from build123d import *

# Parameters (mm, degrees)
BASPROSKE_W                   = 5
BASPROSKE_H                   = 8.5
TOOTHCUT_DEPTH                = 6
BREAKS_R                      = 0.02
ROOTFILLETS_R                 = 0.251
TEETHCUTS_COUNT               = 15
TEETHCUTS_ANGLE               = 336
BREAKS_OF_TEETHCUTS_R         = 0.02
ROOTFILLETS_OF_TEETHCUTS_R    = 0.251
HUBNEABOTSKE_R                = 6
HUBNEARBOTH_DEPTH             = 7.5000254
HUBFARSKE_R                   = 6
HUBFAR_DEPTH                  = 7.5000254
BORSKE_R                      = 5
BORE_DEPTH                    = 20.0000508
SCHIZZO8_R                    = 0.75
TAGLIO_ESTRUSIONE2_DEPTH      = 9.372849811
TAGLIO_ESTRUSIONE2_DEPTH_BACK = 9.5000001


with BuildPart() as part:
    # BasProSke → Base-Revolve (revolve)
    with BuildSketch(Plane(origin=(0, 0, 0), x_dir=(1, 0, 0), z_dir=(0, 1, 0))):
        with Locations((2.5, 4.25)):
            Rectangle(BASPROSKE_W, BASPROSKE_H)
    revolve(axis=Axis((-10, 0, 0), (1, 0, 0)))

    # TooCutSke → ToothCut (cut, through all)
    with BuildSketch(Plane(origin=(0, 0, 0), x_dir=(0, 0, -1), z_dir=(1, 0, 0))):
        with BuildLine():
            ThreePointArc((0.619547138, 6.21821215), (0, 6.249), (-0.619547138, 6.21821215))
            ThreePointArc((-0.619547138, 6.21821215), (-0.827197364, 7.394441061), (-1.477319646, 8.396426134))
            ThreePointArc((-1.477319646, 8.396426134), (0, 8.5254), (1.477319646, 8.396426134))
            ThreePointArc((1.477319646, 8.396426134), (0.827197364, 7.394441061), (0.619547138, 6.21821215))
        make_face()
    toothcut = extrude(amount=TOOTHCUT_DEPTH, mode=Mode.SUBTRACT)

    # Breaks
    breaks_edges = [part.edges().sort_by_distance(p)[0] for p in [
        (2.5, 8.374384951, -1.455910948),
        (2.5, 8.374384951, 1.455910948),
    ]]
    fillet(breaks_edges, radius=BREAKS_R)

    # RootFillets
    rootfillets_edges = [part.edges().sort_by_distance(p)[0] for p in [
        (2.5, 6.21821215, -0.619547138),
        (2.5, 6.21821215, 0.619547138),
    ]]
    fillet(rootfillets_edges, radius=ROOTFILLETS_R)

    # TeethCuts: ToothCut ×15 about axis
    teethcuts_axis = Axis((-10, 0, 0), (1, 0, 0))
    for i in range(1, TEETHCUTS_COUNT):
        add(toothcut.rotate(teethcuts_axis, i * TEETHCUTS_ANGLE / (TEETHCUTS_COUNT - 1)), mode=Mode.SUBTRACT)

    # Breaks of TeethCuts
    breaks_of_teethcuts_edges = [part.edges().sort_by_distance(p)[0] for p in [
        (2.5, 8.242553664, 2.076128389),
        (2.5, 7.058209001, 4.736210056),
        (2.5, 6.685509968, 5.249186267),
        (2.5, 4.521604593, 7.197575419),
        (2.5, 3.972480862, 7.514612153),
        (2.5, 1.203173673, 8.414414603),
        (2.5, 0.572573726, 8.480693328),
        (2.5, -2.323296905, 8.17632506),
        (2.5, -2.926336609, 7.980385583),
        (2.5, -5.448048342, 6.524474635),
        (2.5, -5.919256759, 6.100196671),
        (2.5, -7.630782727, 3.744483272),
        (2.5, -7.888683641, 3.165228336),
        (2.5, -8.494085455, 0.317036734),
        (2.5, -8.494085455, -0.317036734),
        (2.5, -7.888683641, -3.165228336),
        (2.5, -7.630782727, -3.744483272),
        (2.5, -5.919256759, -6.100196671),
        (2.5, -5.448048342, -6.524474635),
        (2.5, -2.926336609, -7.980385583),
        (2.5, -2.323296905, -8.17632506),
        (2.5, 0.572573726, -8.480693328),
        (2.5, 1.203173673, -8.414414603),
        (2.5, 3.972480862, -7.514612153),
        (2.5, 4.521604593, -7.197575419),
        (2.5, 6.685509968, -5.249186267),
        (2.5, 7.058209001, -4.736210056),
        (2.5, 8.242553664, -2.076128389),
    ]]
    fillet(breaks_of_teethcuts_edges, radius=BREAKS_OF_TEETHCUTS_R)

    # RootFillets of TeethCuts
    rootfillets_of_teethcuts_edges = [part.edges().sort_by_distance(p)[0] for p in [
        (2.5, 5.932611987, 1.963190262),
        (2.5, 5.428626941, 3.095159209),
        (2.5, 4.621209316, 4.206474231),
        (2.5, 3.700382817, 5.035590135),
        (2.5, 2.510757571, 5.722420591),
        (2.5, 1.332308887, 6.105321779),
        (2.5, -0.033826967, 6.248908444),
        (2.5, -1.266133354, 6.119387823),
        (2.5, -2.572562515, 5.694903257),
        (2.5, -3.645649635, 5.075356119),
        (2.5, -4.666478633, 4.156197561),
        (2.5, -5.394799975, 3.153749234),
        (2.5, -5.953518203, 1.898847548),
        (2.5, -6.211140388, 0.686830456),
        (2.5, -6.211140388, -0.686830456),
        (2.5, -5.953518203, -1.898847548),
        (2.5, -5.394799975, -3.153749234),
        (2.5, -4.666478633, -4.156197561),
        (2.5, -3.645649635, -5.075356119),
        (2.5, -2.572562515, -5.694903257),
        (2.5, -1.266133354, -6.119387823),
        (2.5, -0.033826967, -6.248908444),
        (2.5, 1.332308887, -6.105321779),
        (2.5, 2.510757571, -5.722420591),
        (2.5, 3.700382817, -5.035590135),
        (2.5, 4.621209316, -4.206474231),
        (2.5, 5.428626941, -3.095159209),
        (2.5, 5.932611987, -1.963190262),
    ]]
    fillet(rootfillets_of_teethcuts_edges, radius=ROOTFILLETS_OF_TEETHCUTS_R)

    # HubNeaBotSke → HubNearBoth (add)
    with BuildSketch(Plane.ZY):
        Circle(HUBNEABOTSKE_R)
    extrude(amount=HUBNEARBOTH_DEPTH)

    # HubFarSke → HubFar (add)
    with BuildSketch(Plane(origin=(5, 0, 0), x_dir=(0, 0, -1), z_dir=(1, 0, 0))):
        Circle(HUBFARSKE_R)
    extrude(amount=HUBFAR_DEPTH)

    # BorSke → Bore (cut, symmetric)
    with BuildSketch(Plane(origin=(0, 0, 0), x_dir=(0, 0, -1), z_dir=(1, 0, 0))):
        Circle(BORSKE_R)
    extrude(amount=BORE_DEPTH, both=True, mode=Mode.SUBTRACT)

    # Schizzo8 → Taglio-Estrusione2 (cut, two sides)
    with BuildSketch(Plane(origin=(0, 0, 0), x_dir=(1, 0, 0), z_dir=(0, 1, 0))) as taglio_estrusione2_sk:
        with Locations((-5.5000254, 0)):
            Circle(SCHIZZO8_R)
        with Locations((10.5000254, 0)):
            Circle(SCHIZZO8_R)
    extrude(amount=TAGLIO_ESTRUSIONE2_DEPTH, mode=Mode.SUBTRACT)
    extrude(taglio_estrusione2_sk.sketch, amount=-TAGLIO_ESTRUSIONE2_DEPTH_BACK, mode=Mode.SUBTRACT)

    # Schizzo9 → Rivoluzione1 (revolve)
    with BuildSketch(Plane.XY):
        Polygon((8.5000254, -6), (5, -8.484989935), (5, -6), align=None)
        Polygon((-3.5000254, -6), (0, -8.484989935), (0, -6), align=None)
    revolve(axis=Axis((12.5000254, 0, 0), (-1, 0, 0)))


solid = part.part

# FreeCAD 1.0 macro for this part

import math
import FreeCAD as App
import Part
import Sketcher
Q = App.Units.Quantity


def edges_at(feature, points):
    """Names of the edges that pass closest to the given points."""
    edges = feature.Shape.Edges
    near = lambda p: min(range(len(edges)), key=lambda i: edges[i].distToShape(Part.Vertex(*p))[0])
    return sorted({f"Edge{near(p) + 1}" for p in points})

doc = App.newDocument("Part")
body = doc.addObject("PartDesign::Body", "Body")

# Sketch on XZ plane
sketch1 = body.newObject("Sketcher::SketchObject", "Sketch")
sketch1.AttachmentSupport = (doc.getObject("XZ_Plane"), [""])
sketch1.MapMode = "FlatFace"
sketch1.addGeometry([
    Part.LineSegment(App.Vector(0, -8, 0), App.Vector(0, 0, 0)),
    Part.LineSegment(App.Vector(0, 0, 0), App.Vector(5, 0, 0)),
    Part.LineSegment(App.Vector(5, 0, 0), App.Vector(5, -8, 0)),
    Part.LineSegment(App.Vector(5, -8, 0), App.Vector(0, -8, 0)),
], False)
sketch1.addConstraint([
    Sketcher.Constraint("Coincident", 0, 2, 1, 1),
    Sketcher.Constraint("Coincident", 1, 2, 2, 1),
    Sketcher.Constraint("Coincident", 2, 2, 3, 1),
    Sketcher.Constraint("Coincident", 3, 2, 0, 1),
    Sketcher.Constraint("Vertical", 0),
    Sketcher.Constraint("Horizontal", 1),
    Sketcher.Constraint("Vertical", 2),
    Sketcher.Constraint("Horizontal", 3),
    Sketcher.Constraint("Coincident", 0, 2, -1, 1),
    Sketcher.Constraint("DistanceX", 1, 1, 1, 2, Q("5 mm")),
    Sketcher.Constraint("DistanceY", 0, 1, 0, 2, Q("8.5 mm")),
])
revolution = body.newObject("PartDesign::Revolution", "Revolution")
revolution.Profile = sketch1
revolution.ReferenceAxis = (sketch1, ["H_Axis"])
revolution.Angle = 360

# Sketch on YZ plane
sketch2 = body.newObject("Sketcher::SketchObject", "Sketch001")
sketch2.AttachmentSupport = (doc.getObject("YZ_Plane"), [""])
sketch2.MapMode = "FlatFace"
sketch2.addGeometry([
    Part.ArcOfCircle(Part.Circle(App.Vector(0, 0, 0), App.Vector(0, 0, 1), 6.2), math.radians(-5.69), math.radians(5.69)),
    Part.ArcOfCircle(Part.Circle(App.Vector(6.3, -3.6, 0), App.Vector(0, 0, 1), 3), math.radians(46), math.radians(91)),
    Part.ArcOfCircle(Part.Circle(App.Vector(0, 0, 0), App.Vector(0, 0, 1), 8.5), math.radians(-9.98), math.radians(9.98)),
    Part.ArcOfCircle(Part.Circle(App.Vector(6.3, 3.6, 0), App.Vector(0, 0, 1), 3), math.radians(-91), math.radians(-46)),
], False)
sketch2.addConstraint([
    Sketcher.Constraint("Coincident", 0, 1, 1, 2),
    Sketcher.Constraint("Coincident", 1, 1, 2, 1),
    Sketcher.Constraint("Coincident", 2, 2, 3, 2),
    Sketcher.Constraint("Coincident", 3, 1, 0, 2),
    Sketcher.Constraint("Coincident", 0, 3, -1, 1),
    Sketcher.Constraint("Coincident", 2, 3, -1, 1),
    Sketcher.Constraint("Equal", 1, 3),
    Sketcher.Constraint("Symmetric", 1, 3, 3, 3, -1),
    Sketcher.Constraint("Radius", 1, Q("3 mm")),
    Sketcher.Constraint("Radius", 0, Q("6.249 mm")),
    Sketcher.Constraint("Radius", 2, Q("8.5254 mm")),
    Sketcher.Constraint("DistanceX", 0, 1, 1, 3, Q("0.077001 mm")),
    Sketcher.Constraint("DistanceY", 1, 3, -1, 1, Q("3.618559 mm")),
])
pocket1 = body.newObject("PartDesign::Pocket", "Pocket")
pocket1.Profile = sketch2
pocket1.Type = "ThroughAll"
pocket1.Reversed = True
doc.recompute()

fillet = body.newObject("PartDesign::Fillet", "Fillet")
fillet.Base = (pocket1, edges_at(pocket1, [(2.5, 8.374, -1.456), (2.5, 8.374, 1.456)]))
fillet.Radius = 0.02
doc.recompute()

fillet2 = body.newObject("PartDesign::Fillet", "Fillet001")
fillet2.Base = (fillet, edges_at(fillet, [(2.5, 6.218, -0.62), (2.5, 6.218, 0.62)]))
fillet2.Radius = 0.251
doc.recompute()

polarpattern = body.newObject("PartDesign::PolarPattern", "PolarPattern")
polarpattern.Originals = [pocket1]
polarpattern.Axis = (doc.getObject("X_Axis"), [""])
polarpattern.Angle = 360
polarpattern.Occurrences = 15
body.Tip = polarpattern
doc.recompute()

fillet3 = body.newObject("PartDesign::Fillet", "Fillet002")
fillet3.Base = (polarpattern, edges_at(polarpattern, [
    (2.5, 8.243, 2.076),
    (2.5, 7.058, 4.736),
    (2.5, 6.686, 5.249),
    (2.5, 4.522, 7.198),
    (2.5, 3.972, 7.515),
    (2.5, 1.203, 8.414),
    (2.5, 0.573, 8.481),
    (2.5, -2.323, 8.176),
    (2.5, -2.926, 7.98),
    (2.5, -5.448, 6.524),
    (2.5, -5.919, 6.1),
    (2.5, -7.631, 3.744),
    (2.5, -7.889, 3.165),
    (2.5, -8.494, 0.317),
    (2.5, -8.494, -0.317),
    (2.5, -7.889, -3.165),
    (2.5, -7.631, -3.744),
    (2.5, -5.919, -6.1),
    (2.5, -5.448, -6.524),
    (2.5, -2.926, -7.98),
    (2.5, -2.323, -8.176),
    (2.5, 0.573, -8.481),
    (2.5, 1.203, -8.414),
    (2.5, 3.972, -7.515),
    (2.5, 4.522, -7.198),
    (2.5, 6.686, -5.249),
    (2.5, 7.058, -4.736),
    (2.5, 8.243, -2.076),
]))
fillet3.Radius = 0.02
doc.recompute()

fillet4 = body.newObject("PartDesign::Fillet", "Fillet003")
fillet4.Base = (fillet3, edges_at(fillet3, [
    (2.5, 5.933, 1.963),
    (2.5, 5.429, 3.095),
    (2.5, 4.621, 4.206),
    (2.5, 3.7, 5.036),
    (2.5, 2.511, 5.722),
    (2.5, 1.332, 6.105),
    (2.5, -0.034, 6.249),
    (2.5, -1.266, 6.119),
    (2.5, -2.573, 5.695),
    (2.5, -3.646, 5.075),
    (2.5, -4.666, 4.156),
    (2.5, -5.395, 3.154),
    (2.5, -5.954, 1.899),
    (2.5, -6.211, 0.687),
    (2.5, -6.211, -0.687),
    (2.5, -5.954, -1.899),
    (2.5, -5.395, -3.154),
    (2.5, -4.666, -4.156),
    (2.5, -3.646, -5.075),
    (2.5, -2.573, -5.695),
    (2.5, -1.266, -6.119),
    (2.5, -0.034, -6.249),
    (2.5, 1.332, -6.105),
    (2.5, 2.511, -5.722),
    (2.5, 3.7, -5.036),
    (2.5, 4.621, -4.206),
    (2.5, 5.429, -3.095),
    (2.5, 5.933, -1.963),
]))
fillet4.Radius = 0.251

# Sketch on YZ plane
sketch3 = body.newObject("Sketcher::SketchObject", "Sketch002")
sketch3.AttachmentSupport = (doc.getObject("YZ_Plane"), [""])
sketch3.MapMode = "FlatFace"
sketch3.addGeometry(Part.Circle(App.Vector(0, 0, 0), App.Vector(0, 0, 1), 6), False)
sketch3.addConstraint([
    Sketcher.Constraint("Coincident", 0, 3, -1, 1),
    Sketcher.Constraint("Diameter", 0, Q("12 mm")),
])
pad1 = body.newObject("PartDesign::Pad", "Pad")
pad1.Profile = sketch3
pad1.Length = 7.500025
pad1.Reversed = True

# Sketch on YZ plane
sketch4 = body.newObject("Sketcher::SketchObject", "Sketch003")
sketch4.AttachmentSupport = (doc.getObject("YZ_Plane"), [""])
sketch4.MapMode = "FlatFace"
sketch4.AttachmentOffset = App.Placement(App.Vector(0, 0, 5), App.Rotation())
sketch4.addGeometry(Part.Circle(App.Vector(0, 0, 0), App.Vector(0, 0, 1), 6), False)
sketch4.addConstraint([
    Sketcher.Constraint("Coincident", 0, 3, -1, 1),
    Sketcher.Constraint("Diameter", 0, Q("12 mm")),
])
pad2 = body.newObject("PartDesign::Pad", "Pad001")
pad2.Profile = sketch4
pad2.Length = 7.500025

# Sketch on YZ plane
sketch5 = body.newObject("Sketcher::SketchObject", "Sketch004")
sketch5.AttachmentSupport = (doc.getObject("YZ_Plane"), [""])
sketch5.MapMode = "FlatFace"
sketch5.addGeometry(Part.Circle(App.Vector(0, 0, 0), App.Vector(0, 0, 1), 5), False)
sketch5.addConstraint([
    Sketcher.Constraint("Coincident", 0, 3, -1, 1),
    Sketcher.Constraint("Diameter", 0, Q("10 mm")),
])
pocket2 = body.newObject("PartDesign::Pocket", "Pocket001")
pocket2.Profile = sketch5
pocket2.Length = 40.000102
pocket2.Midplane = True

# Sketch on XZ plane
sketch6 = body.newObject("Sketcher::SketchObject", "Sketch005")
sketch6.AttachmentSupport = (doc.getObject("XZ_Plane"), [""])
sketch6.MapMode = "FlatFace"
sketch6.addGeometry([
    Part.Circle(App.Vector(-5.5, 0, 0), App.Vector(0, 0, 1), 0.8),
    Part.Circle(App.Vector(10.5, 0, 0), App.Vector(0, 0, 1), 0.8),
], False)
sketch6.addConstraint([
    Sketcher.Constraint("Equal", 0, 1),
    Sketcher.Constraint("PointOnObject", 0, 3, -1),
    Sketcher.Constraint("PointOnObject", 1, 3, -1),
    Sketcher.Constraint("Diameter", 0, Q("1.5 mm")),
    Sketcher.Constraint("DistanceX", 0, 3, 1, 3, Q("16.000051 mm")),
    Sketcher.Constraint("DistanceX", 0, 3, -1, 1, Q("5.500025 mm")),
])
pocket3 = body.newObject("PartDesign::Pocket", "Pocket002")
pocket3.Profile = sketch6
pocket3.Type = "ThroughAll"
pocket3.Midplane = True

# Sketch on XY plane
sketch7 = body.newObject("Sketcher::SketchObject", "Sketch006")
sketch7.AttachmentSupport = (doc.getObject("XY_Plane"), [""])
sketch7.MapMode = "FlatFace"
sketch7.addGeometry([
    Part.LineSegment(App.Vector(5, -8.5, 0), App.Vector(8.5, -6, 0)),  # 0
    Part.LineSegment(App.Vector(8.5, -6, 0), App.Vector(5, -6, 0)),  # 1
    Part.LineSegment(App.Vector(5, -6, 0), App.Vector(5, -8.5, 0)),  # 2
    Part.LineSegment(App.Vector(-3.5, -6, 0), App.Vector(0, -8.5, 0)),  # 3
    Part.LineSegment(App.Vector(0, -8.5, 0), App.Vector(0, -6, 0)),  # 4
    Part.LineSegment(App.Vector(0, -6, 0), App.Vector(-3.5, -6, 0)),  # 5
], False)
sketch7.addConstraint([
    Sketcher.Constraint("Coincident", 0, 2, 1, 1),
    Sketcher.Constraint("Coincident", 1, 2, 2, 1),
    Sketcher.Constraint("Coincident", 2, 2, 0, 1),
    Sketcher.Constraint("Coincident", 3, 2, 4, 1),
    Sketcher.Constraint("Coincident", 4, 2, 5, 1),
    Sketcher.Constraint("Coincident", 5, 2, 3, 1),
    Sketcher.Constraint("Horizontal", 1),
    Sketcher.Constraint("Vertical", 2),
    Sketcher.Constraint("Vertical", 4),
    Sketcher.Constraint("Horizontal", 5),
    Sketcher.Constraint("PointOnObject", 3, 2, -2),
    Sketcher.Constraint("Horizontal", 2, 2, 3, 2),
    Sketcher.Constraint("Horizontal", 1, 2, 4, 2),
    Sketcher.Constraint("Equal", 1, 5),
    Sketcher.Constraint("DistanceY", 0, 2, -1, 1, Q("6 mm")),
    Sketcher.Constraint("DistanceX", -1, 1, 1, 2, Q("5 mm")),
    Sketcher.Constraint("DistanceY", 2, 2, 2, 1, Q("2.48499 mm")),
    Sketcher.Constraint("DistanceX", 1, 2, 1, 1, Q("3.500025 mm")),
])
revolution2 = body.newObject("PartDesign::Revolution", "Revolution001")
revolution2.Profile = sketch7
revolution2.ReferenceAxis = (sketch7, ["H_Axis"])
revolution2.Angle = 360

doc.recompute()
